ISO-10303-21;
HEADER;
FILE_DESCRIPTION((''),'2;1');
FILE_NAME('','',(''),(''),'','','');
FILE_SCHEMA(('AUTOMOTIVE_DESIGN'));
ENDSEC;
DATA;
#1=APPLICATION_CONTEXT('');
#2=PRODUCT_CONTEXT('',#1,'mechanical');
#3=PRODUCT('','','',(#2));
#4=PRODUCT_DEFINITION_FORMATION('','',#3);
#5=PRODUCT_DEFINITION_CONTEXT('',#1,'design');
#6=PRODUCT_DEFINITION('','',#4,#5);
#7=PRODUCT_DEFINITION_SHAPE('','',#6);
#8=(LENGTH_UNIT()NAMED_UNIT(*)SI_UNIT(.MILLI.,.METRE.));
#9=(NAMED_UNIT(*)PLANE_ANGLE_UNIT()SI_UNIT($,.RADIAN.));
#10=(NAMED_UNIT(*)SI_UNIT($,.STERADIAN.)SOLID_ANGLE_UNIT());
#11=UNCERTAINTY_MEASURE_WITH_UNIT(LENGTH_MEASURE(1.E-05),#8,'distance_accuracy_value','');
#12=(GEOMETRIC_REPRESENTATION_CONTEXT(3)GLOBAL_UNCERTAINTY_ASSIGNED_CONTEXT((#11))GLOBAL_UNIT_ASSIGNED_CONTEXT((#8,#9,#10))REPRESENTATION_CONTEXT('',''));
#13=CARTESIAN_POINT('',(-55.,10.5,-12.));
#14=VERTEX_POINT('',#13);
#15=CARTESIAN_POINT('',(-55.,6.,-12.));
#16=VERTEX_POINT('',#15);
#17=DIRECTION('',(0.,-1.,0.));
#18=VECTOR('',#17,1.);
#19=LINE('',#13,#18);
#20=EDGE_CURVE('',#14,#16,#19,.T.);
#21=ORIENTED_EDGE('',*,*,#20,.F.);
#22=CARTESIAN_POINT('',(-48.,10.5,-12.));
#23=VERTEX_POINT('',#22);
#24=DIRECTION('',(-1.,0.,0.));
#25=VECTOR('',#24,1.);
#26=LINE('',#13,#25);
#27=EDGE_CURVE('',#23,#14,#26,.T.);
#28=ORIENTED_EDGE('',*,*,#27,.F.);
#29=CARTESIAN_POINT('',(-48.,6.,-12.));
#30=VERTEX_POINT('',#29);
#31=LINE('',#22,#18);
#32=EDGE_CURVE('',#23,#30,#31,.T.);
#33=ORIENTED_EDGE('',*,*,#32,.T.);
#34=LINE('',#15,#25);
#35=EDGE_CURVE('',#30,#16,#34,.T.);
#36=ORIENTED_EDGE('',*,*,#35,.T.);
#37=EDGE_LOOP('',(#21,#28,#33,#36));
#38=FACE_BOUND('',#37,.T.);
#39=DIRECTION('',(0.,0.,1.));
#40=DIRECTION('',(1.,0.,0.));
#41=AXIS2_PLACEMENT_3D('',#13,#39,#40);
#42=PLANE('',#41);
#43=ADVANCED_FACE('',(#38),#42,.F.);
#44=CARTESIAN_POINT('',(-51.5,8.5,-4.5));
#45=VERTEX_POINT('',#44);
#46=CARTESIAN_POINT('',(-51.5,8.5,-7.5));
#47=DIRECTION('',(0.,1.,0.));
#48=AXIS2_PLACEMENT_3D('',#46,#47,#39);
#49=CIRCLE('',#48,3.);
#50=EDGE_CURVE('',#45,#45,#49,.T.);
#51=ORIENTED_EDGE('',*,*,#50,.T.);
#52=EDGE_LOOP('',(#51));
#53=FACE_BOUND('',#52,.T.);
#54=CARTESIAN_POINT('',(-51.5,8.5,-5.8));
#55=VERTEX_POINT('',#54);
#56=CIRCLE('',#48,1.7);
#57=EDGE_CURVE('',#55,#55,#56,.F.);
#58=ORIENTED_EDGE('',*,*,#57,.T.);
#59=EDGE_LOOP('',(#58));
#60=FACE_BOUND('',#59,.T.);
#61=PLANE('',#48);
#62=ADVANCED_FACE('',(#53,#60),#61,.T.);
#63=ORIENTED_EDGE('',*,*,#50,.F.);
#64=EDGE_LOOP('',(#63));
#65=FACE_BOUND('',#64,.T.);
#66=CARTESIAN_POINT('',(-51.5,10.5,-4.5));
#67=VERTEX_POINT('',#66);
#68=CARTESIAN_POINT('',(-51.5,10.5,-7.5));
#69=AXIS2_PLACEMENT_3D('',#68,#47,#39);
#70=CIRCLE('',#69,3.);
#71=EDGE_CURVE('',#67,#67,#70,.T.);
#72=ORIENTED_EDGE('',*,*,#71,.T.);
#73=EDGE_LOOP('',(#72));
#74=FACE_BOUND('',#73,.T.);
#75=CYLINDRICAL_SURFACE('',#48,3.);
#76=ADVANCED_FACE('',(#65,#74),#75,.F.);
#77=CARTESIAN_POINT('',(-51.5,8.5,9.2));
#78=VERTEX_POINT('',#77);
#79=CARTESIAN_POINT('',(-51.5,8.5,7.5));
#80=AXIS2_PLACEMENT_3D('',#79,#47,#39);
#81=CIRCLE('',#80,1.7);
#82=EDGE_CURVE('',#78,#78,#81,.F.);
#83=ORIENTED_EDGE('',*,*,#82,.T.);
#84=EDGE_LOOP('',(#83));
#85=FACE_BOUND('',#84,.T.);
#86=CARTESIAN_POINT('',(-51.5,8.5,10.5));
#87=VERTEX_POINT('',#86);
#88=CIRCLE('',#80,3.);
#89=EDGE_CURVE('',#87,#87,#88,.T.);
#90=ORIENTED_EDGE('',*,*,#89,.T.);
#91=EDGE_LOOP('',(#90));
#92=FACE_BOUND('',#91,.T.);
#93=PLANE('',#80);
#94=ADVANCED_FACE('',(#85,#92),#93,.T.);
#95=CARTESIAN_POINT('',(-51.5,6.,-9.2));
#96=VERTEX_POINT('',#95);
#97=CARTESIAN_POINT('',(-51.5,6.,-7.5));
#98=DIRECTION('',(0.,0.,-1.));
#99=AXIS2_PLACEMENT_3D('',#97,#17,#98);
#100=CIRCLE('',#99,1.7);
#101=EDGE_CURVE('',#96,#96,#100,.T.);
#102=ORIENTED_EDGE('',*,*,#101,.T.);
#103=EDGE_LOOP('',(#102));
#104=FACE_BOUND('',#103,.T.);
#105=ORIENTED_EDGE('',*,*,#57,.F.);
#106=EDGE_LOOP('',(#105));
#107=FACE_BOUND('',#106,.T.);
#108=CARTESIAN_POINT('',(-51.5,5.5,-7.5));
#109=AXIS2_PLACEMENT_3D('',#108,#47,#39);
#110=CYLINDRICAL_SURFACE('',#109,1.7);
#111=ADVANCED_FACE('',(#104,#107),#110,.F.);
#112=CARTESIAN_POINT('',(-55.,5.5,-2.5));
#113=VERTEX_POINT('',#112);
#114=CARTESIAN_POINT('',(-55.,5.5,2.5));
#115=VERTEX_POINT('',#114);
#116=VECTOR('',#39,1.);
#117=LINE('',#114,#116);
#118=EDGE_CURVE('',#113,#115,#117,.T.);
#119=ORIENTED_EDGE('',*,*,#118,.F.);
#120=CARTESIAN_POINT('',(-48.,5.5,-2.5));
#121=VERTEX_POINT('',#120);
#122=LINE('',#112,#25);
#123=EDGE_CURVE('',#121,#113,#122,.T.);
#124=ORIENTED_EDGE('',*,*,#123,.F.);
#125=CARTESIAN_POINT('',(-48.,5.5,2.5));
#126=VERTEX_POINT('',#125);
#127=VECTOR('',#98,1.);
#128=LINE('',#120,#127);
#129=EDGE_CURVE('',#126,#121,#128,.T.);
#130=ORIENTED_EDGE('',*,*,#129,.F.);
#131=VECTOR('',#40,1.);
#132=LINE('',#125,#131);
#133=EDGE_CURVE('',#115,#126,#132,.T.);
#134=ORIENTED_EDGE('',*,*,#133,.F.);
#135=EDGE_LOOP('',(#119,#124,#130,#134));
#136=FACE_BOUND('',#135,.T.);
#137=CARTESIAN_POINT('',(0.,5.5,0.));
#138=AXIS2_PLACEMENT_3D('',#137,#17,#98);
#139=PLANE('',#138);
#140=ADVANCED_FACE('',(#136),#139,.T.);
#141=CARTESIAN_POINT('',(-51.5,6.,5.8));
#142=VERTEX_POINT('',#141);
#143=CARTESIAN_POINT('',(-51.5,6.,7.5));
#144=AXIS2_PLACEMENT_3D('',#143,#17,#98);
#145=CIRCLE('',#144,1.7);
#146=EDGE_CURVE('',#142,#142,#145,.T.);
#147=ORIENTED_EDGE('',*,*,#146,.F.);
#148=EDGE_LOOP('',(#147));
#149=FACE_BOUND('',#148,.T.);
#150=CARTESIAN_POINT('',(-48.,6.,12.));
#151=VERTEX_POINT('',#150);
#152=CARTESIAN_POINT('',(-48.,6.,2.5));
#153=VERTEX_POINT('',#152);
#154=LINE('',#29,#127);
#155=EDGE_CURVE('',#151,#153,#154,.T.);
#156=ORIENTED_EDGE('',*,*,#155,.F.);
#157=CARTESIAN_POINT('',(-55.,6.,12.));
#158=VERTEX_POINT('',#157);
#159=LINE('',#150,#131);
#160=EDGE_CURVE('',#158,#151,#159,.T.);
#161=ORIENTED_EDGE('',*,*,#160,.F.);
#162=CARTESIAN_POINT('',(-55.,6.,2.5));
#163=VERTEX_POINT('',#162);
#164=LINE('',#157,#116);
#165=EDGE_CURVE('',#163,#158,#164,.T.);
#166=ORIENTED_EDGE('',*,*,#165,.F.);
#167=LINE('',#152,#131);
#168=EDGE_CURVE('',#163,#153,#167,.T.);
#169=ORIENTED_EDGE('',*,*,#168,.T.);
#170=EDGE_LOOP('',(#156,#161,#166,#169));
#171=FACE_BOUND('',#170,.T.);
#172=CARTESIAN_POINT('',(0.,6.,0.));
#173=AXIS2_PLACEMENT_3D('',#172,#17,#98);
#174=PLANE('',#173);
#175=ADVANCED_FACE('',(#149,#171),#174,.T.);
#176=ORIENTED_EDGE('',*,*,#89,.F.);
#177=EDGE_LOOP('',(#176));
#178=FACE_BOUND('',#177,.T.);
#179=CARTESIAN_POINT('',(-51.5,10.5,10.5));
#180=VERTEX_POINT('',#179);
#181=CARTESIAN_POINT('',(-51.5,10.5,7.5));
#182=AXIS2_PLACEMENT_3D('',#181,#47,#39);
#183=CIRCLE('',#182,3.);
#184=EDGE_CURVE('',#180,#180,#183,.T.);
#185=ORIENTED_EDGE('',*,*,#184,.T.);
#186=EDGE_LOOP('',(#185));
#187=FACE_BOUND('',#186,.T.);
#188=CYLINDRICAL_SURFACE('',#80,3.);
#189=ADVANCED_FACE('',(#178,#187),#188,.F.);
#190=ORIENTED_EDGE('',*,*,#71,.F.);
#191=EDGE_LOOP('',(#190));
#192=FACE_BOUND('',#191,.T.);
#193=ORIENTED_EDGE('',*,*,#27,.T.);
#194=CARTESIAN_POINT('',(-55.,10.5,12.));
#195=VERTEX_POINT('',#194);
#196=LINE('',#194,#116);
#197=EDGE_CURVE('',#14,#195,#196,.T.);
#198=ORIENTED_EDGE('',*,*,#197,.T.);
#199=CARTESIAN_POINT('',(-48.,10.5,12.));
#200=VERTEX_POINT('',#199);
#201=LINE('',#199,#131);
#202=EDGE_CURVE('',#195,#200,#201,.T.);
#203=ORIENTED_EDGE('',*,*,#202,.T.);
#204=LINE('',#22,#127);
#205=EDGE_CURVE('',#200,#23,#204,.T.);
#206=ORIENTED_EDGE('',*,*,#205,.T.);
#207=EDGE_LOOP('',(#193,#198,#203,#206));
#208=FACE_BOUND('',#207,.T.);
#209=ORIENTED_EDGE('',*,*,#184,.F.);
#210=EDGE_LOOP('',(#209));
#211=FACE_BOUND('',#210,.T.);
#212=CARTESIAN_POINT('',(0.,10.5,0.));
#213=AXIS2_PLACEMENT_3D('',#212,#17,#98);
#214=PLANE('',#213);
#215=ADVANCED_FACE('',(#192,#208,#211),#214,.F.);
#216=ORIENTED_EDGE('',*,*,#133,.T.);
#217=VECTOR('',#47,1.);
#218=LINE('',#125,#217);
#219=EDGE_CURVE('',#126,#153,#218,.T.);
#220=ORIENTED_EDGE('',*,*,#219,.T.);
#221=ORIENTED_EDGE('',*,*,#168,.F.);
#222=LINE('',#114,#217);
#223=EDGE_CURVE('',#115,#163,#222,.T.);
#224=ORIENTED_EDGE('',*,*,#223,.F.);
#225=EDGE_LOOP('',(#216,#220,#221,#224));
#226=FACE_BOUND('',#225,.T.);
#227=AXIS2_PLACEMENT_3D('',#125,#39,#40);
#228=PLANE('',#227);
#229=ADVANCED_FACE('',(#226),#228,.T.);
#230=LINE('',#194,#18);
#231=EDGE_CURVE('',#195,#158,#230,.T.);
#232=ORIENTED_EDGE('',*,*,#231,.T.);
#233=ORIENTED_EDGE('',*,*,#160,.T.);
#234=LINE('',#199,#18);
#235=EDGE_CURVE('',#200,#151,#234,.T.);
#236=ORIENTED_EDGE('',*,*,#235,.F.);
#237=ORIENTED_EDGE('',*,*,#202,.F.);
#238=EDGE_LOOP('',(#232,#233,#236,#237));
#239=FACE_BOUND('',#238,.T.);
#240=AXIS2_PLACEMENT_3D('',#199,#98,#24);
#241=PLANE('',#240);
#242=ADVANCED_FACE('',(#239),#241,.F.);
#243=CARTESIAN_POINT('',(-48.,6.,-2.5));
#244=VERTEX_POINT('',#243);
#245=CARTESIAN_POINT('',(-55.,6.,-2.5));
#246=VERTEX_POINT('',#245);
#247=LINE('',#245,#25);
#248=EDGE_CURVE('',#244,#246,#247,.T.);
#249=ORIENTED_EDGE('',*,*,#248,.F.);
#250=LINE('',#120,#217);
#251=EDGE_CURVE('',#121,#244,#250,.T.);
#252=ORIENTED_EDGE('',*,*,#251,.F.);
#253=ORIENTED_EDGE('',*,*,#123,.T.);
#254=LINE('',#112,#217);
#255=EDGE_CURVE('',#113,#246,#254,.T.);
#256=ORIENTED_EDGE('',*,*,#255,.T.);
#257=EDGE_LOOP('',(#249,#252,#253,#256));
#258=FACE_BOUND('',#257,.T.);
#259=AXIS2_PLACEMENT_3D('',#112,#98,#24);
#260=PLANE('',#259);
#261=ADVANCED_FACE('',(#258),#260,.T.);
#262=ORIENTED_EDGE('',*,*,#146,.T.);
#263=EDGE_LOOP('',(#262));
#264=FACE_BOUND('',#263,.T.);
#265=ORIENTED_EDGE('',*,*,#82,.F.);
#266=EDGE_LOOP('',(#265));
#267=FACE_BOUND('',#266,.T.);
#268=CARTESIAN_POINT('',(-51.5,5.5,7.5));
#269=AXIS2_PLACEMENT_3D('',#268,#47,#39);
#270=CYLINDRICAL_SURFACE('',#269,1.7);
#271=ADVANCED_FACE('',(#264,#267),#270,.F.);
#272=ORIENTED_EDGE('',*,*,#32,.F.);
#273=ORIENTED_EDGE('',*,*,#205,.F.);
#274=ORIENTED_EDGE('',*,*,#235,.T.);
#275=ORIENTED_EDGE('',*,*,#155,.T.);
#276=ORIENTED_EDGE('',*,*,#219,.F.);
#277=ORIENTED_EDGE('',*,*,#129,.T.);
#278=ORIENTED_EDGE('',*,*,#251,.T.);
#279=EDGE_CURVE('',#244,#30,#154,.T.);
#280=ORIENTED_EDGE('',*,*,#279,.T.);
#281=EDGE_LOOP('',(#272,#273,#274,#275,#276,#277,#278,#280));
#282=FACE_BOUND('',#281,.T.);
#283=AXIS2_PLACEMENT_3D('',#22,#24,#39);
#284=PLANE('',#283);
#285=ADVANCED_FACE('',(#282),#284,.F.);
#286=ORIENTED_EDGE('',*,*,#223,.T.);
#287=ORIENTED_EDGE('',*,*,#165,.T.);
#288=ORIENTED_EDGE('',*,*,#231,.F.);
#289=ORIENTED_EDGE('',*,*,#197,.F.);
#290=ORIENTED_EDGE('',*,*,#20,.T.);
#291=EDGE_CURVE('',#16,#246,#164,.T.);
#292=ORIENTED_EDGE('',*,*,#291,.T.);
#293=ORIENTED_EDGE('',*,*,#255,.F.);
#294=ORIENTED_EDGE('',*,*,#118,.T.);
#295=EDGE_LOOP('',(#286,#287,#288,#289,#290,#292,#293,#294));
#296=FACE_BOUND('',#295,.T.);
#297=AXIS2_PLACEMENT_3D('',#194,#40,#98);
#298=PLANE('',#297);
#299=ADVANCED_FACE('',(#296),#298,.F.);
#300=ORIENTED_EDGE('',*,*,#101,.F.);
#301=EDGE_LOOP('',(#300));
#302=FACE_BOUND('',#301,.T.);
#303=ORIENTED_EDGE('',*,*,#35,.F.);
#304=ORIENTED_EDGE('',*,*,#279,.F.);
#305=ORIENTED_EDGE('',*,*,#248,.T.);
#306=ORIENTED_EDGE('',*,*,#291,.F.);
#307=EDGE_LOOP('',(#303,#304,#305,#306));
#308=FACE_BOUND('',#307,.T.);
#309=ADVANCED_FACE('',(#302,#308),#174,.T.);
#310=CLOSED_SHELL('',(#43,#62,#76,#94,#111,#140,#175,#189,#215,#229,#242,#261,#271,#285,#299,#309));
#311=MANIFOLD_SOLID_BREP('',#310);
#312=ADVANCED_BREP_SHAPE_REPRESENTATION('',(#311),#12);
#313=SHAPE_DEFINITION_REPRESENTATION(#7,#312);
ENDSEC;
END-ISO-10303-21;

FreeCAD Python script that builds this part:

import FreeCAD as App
import Part
import Sketcher
from FreeCAD import Vector
Q = App.Units.Quantity

doc = App.newDocument("Part")
body = doc.addObject("PartDesign::Body", "Body")

sketch1 = body.newObject("Sketcher::SketchObject", "Sketch")
sketch1.AttachmentSupport = (doc.getObject("XZ_Plane"), [""])
sketch1.MapMode = "FlatFace"
sketch1.AttachmentOffset = App.Placement(Vector(0, 0, -6), App.Rotation())
sketch1.addGeometry(Part.LineSegment(Vector(-55, -12, 0), Vector(-55, 12, 0)), False)
sketch1.addGeometry(Part.LineSegment(Vector(-55, 12, 0), Vector(-48, 12, 0)), False)
sketch1.addGeometry(Part.LineSegment(Vector(-48, 12, 0), Vector(-48, -12, 0)), False)
sketch1.addGeometry(Part.LineSegment(Vector(-48, -12, 0), Vector(-55, -12, 0)), False)
sketch1.addConstraint(Sketcher.Constraint("Coincident", 0, 2, 1, 1))
sketch1.addConstraint(Sketcher.Constraint("Coincident", 1, 2, 2, 1))
sketch1.addConstraint(Sketcher.Constraint("Coincident", 2, 2, 3, 1))
sketch1.addConstraint(Sketcher.Constraint("Coincident", 3, 2, 0, 1))
sketch1.addConstraint(Sketcher.Constraint("Vertical", 0))
sketch1.addConstraint(Sketcher.Constraint("Horizontal", 1))
sketch1.addConstraint(Sketcher.Constraint("Vertical", 2))
sketch1.addConstraint(Sketcher.Constraint("Horizontal", 3))
sketch1.addConstraint(Sketcher.Constraint("DistanceX", 1, 1, 1, 2, Q("7 mm")))
sketch1.addConstraint(Sketcher.Constraint("DistanceY", 0, 1, 0, 2, Q("24 mm")))
sketch1.addConstraint(Sketcher.Constraint("DistanceX", 0, 2, -1, 1, Q("55 mm")))
sketch1.addConstraint(Sketcher.Constraint("DistanceY", -1, 1, 0, 2, Q("12 mm")))
pad1 = body.newObject("PartDesign::Pad", "Pad")
pad1.Profile = sketch1
pad1.Length = 4.5
pad1.Reversed = True

sketch2 = body.newObject("Sketcher::SketchObject", "Sketch001")
sketch2.AttachmentSupport = (doc.getObject("XZ_Plane"), [""])
sketch2.MapMode = "FlatFace"
sketch2.AttachmentOffset = App.Placement(Vector(0, 0, -6), App.Rotation())
sketch2.addGeometry(Part.LineSegment(Vector(-55, -2.5, 0), Vector(-55, 2.5, 0)), False)
sketch2.addGeometry(Part.LineSegment(Vector(-55, 2.5, 0), Vector(-48, 2.5, 0)), False)
sketch2.addGeometry(Part.LineSegment(Vector(-48, 2.5, 0), Vector(-48, -2.5, 0)), False)
sketch2.addGeometry(Part.LineSegment(Vector(-48, -2.5, 0), Vector(-55, -2.5, 0)), False)
sketch2.addConstraint(Sketcher.Constraint("Coincident", 0, 2, 1, 1))
sketch2.addConstraint(Sketcher.Constraint("Coincident", 1, 2, 2, 1))
sketch2.addConstraint(Sketcher.Constraint("Coincident", 2, 2, 3, 1))
sketch2.addConstraint(Sketcher.Constraint("Coincident", 3, 2, 0, 1))
sketch2.addConstraint(Sketcher.Constraint("Vertical", 0))
sketch2.addConstraint(Sketcher.Constraint("Horizontal", 1))
sketch2.addConstraint(Sketcher.Constraint("Vertical", 2))
sketch2.addConstraint(Sketcher.Constraint("Horizontal", 3))
sketch2.addConstraint(Sketcher.Constraint("DistanceX", 1, 1, 1, 2, Q("7 mm")))
sketch2.addConstraint(Sketcher.Constraint("DistanceY", 0, 1, 0, 2, Q("5 mm")))
sketch2.addConstraint(Sketcher.Constraint("DistanceX", 0, 2, -1, 1, Q("55 mm")))
sketch2.addConstraint(Sketcher.Constraint("DistanceY", -1, 1, 0, 2, Q("2.5 mm")))
pad2 = body.newObject("PartDesign::Pad", "Pad001")
pad2.Profile = sketch2
pad2.Length = 0.5

sketch3 = body.newObject("Sketcher::SketchObject", "Sketch002")
sketch3.AttachmentSupport = (doc.getObject("XZ_Plane"), [""])
sketch3.MapMode = "FlatFace"
sketch3.AttachmentOffset = App.Placement(Vector(0, 0, -10.5), App.Rotation())
sketch3.addGeometry(Part.Circle(Vector(-51.5, -7.5, 0), Vector(0, 0, 1), 1.7), False)
sketch3.addGeometry(Part.Circle(Vector(-51.5, 7.5, 0), Vector(0, 0, 1), 1.7), False)
sketch3.addConstraint(Sketcher.Constraint("Equal", 0, 1))
sketch3.addConstraint(Sketcher.Constraint("Symmetric", 0, 3, 1, 3, -1))
sketch3.addConstraint(Sketcher.Constraint("Diameter", 0, Q("3.4 mm")))
sketch3.addConstraint(Sketcher.Constraint("DistanceY", 0, 3, 1, 3, Q("15 mm")))
sketch3.addConstraint(Sketcher.Constraint("DistanceX", 0, 3, -1, 1, Q("51.5 mm")))
pocket1 = body.newObject("PartDesign::Pocket", "Pocket")
pocket1.Profile = sketch3
pocket1.Type = "ThroughAll"
pocket1.Reversed = True

sketch4 = body.newObject("Sketcher::SketchObject", "Sketch003")
sketch4.AttachmentSupport = (doc.getObject("XZ_Plane"), [""])
sketch4.MapMode = "FlatFace"
sketch4.AttachmentOffset = App.Placement(Vector(0, 0, -10.5), App.Rotation())
sketch4.addGeometry(Part.Circle(Vector(-51.5, -7.5, 0), Vector(0, 0, 1), 3), False)
sketch4.addGeometry(Part.Circle(Vector(-51.5, 7.5, 0), Vector(0, 0, 1), 3), False)
sketch4.addConstraint(Sketcher.Constraint("Equal", 0, 1))
sketch4.addConstraint(Sketcher.Constraint("Symmetric", 0, 3, 1, 3, -1))
sketch4.addConstraint(Sketcher.Constraint("Diameter", 0, Q("6 mm")))
sketch4.addConstraint(Sketcher.Constraint("DistanceY", 0, 3, 1, 3, Q("15 mm")))
sketch4.addConstraint(Sketcher.Constraint("DistanceX", 0, 3, -1, 1, Q("51.5 mm")))
pocket2 = body.newObject("PartDesign::Pocket", "Pocket001")
pocket2.Profile = sketch4
pocket2.Length = 2
pocket2.Reversed = True

doc.recompute()
